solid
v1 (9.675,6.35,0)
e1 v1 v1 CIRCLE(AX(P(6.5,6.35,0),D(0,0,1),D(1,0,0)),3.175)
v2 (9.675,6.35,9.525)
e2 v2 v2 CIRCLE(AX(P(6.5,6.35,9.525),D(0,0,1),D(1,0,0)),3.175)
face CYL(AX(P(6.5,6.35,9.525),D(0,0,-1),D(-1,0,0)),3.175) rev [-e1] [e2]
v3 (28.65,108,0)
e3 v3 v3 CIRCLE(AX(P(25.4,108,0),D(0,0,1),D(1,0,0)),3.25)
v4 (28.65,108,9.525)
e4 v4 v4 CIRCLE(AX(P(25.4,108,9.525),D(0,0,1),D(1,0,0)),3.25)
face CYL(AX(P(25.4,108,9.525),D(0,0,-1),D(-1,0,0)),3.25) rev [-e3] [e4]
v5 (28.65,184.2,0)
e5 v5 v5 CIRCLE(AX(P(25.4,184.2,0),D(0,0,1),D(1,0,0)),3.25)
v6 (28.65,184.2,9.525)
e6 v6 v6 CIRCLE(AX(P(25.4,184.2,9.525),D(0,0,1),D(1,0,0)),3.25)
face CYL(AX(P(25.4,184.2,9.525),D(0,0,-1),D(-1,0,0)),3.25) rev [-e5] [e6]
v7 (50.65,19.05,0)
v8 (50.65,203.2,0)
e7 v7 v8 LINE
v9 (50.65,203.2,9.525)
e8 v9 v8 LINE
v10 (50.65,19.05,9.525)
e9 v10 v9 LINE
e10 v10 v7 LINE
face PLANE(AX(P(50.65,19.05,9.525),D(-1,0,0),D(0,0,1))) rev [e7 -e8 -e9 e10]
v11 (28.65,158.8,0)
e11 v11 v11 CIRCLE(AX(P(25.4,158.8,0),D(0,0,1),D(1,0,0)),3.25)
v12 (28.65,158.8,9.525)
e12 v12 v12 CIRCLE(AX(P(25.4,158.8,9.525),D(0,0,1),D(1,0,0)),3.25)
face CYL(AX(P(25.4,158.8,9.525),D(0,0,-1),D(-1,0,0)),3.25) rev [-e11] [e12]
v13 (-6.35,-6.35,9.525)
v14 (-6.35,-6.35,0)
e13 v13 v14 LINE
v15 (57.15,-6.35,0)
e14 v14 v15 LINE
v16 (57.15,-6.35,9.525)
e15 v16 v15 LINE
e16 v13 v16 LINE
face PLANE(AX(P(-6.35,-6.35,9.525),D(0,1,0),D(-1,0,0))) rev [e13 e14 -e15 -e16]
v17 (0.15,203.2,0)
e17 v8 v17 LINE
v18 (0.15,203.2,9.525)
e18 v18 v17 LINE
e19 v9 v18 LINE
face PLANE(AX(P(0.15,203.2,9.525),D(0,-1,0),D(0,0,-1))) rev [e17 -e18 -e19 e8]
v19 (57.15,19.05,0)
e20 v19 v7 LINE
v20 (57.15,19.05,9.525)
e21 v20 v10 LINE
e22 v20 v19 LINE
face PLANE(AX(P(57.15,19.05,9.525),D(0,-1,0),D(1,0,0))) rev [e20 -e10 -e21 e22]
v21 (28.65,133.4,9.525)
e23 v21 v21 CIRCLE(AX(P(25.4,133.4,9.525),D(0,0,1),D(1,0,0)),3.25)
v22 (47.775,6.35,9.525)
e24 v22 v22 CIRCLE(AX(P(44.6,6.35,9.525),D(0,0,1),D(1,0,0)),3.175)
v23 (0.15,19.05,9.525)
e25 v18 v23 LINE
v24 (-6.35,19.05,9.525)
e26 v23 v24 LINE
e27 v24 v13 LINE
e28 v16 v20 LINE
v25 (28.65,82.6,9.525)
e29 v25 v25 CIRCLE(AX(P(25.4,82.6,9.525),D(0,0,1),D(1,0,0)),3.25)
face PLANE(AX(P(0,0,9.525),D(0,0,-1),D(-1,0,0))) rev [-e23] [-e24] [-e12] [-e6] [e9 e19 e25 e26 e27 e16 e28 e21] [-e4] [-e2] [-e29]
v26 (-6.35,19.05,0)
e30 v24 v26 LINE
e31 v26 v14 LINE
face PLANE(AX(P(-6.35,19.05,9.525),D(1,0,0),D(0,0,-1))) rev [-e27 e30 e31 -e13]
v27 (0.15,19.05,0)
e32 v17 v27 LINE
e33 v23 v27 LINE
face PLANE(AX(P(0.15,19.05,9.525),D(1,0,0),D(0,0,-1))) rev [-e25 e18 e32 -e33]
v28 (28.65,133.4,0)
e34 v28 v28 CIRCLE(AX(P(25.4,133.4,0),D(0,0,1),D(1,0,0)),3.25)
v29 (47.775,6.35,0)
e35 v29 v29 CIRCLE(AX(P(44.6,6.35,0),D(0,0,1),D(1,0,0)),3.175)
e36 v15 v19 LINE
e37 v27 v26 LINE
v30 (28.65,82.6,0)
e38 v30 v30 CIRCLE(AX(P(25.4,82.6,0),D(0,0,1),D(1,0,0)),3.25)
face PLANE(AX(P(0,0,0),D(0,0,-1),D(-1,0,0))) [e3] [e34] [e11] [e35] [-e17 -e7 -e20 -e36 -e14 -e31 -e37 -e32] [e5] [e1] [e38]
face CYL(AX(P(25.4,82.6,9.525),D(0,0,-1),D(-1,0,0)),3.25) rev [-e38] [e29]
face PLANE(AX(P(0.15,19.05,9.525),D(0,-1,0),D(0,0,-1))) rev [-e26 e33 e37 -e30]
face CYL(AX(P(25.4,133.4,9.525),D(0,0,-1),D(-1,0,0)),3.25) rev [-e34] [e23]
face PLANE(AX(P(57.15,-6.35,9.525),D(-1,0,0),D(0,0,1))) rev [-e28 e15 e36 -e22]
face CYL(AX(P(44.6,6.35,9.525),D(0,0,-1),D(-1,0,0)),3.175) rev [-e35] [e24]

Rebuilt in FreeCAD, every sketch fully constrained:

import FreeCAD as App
import Part
import Sketcher
from FreeCAD import Vector
Q = App.Units.Quantity


def add_polygon(sketch, points):
    """Adds a closed chain of lines whose ends are joined by coincident constraints."""
    first, n = sketch.GeometryCount, len(points)
    for a, b in zip(points, points[1:] + points[:1]):
        sketch.addGeometry(Part.LineSegment(App.Vector(*a, 0), App.Vector(*b, 0)), False)
    for i in range(n):
        sketch.addConstraint(Sketcher.Constraint("Coincident", first + i, 2, first + (i + 1) % n, 1))

doc = App.newDocument("Part")
body = doc.addObject("PartDesign::Body", "Body")

# Sketch on XY plane
sketch1 = body.newObject("Sketcher::SketchObject", "Sketch")
sketch1.AttachmentSupport = (doc.getObject("XY_Plane"), [""])
sketch1.MapMode = "FlatFace"
add_polygon(sketch1, [(0.1, 203.2), (0.1, 19.1), (-6.3, 19.1), (-6.3, -6.3), (57.1, -6.3), (57.1, 19.1), (50.6, 19.1), (50.6, 203.2)])  # lines 0-7
sketch1.addGeometry(Part.Circle(Vector(44.6, 6.3, 0), Vector(0, 0, 1), 3.2), False)  # 8
sketch1.addGeometry(Part.Circle(Vector(6.5, 6.3, 0), Vector(0, 0, 1), 3.2), False)  # 9
sketch1.addGeometry(Part.Circle(Vector(25.4, 82.6, 0), Vector(0, 0, 1), 3.2), False)  # 10
sketch1.addGeometry(Part.Circle(Vector(25.4, 108, 0), Vector(0, 0, 1), 3.2), False)  # 11
sketch1.addGeometry(Part.Circle(Vector(25.4, 133.4, 0), Vector(0, 0, 1), 3.2), False)  # 12
sketch1.addGeometry(Part.Circle(Vector(25.4, 158.8, 0), Vector(0, 0, 1), 3.2), False)  # 13
sketch1.addGeometry(Part.Circle(Vector(25.4, 184.2, 0), Vector(0, 0, 1), 3.2), False)  # 14
sketch1.addConstraint([
    Sketcher.Constraint("Vertical", 0),
    Sketcher.Constraint("Horizontal", 1),
    Sketcher.Constraint("Vertical", 2),
    Sketcher.Constraint("Horizontal", 3),
    Sketcher.Constraint("Vertical", 4),
    Sketcher.Constraint("Horizontal", 5),
    Sketcher.Constraint("Vertical", 6),
    Sketcher.Constraint("Horizontal", 7),
    Sketcher.Constraint("Equal", 8, 9),
    Sketcher.Constraint("Equal", 10, 11),
    Sketcher.Constraint("Equal", 11, 12),
    Sketcher.Constraint("Equal", 12, 13),
    Sketcher.Constraint("Equal", 13, 14),
    Sketcher.Constraint("Horizontal", 8, 3, 9, 3),
    Sketcher.Constraint("Horizontal", 1, 2, 4, 2),
    Sketcher.Constraint("Vertical", 10, 3, 11, 3),
    Sketcher.Constraint("Vertical", 11, 3, 12, 3),
    Sketcher.Constraint("Vertical", 12, 3, 13, 3),
    Sketcher.Constraint("Vertical", 13, 3, 14, 3),
    Sketcher.Constraint("Equal", 1, 5),
    Sketcher.Constraint("Diameter", 8, Q("0.25 in")),
    Sketcher.Constraint("DistanceY", 2, 2, 2, 1, Q("1 in")),
    Sketcher.Constraint("DistanceX", 3, 1, 3, 2, Q("2.5 in")),
    Sketcher.Constraint("DistanceX", -1, 1, 10, 3, Q("1 in")),
    Sketcher.Constraint("DistanceY", -1, 1, 6, 2, Q("8 in")),
    Sketcher.Constraint("DistanceY", 10, 3, 11, 3, Q("1 in")),
    Sketcher.Constraint("DistanceY", 11, 3, 12, 3, Q("1 in")),
    Sketcher.Constraint("DistanceY", 12, 3, 13, 3, Q("1 in")),
    Sketcher.Constraint("DistanceY", 13, 3, 14, 3, Q("1 in")),
    Sketcher.Constraint("DistanceY", 0, 2, 0, 1, Q("7.25 in")),
    Sketcher.Constraint("DistanceX", 9, 3, 8, 3, Q("1.5 in")),
    Sketcher.Constraint("DistanceY", 9, 3, 0, 2, Q("0.5 in")),
    Sketcher.Constraint("Diameter", 10, 6.5),
    Sketcher.Constraint("DistanceX", 1, 2, -1, 1, Q("0.25 in")),
    Sketcher.Constraint("DistanceX", 0, 2, 9, 3, Q("0.25 in")),
    Sketcher.Constraint("DistanceX", 1, 2, 1, 1, 6.5),
    Sketcher.Constraint("DistanceY", -1, 1, 10, 3, 82.6),
])
pad1 = body.newObject("PartDesign::Pad", "Pad")
pad1.Profile = sketch1
pad1.Length = Q("0.375 in")

doc.recompute()
